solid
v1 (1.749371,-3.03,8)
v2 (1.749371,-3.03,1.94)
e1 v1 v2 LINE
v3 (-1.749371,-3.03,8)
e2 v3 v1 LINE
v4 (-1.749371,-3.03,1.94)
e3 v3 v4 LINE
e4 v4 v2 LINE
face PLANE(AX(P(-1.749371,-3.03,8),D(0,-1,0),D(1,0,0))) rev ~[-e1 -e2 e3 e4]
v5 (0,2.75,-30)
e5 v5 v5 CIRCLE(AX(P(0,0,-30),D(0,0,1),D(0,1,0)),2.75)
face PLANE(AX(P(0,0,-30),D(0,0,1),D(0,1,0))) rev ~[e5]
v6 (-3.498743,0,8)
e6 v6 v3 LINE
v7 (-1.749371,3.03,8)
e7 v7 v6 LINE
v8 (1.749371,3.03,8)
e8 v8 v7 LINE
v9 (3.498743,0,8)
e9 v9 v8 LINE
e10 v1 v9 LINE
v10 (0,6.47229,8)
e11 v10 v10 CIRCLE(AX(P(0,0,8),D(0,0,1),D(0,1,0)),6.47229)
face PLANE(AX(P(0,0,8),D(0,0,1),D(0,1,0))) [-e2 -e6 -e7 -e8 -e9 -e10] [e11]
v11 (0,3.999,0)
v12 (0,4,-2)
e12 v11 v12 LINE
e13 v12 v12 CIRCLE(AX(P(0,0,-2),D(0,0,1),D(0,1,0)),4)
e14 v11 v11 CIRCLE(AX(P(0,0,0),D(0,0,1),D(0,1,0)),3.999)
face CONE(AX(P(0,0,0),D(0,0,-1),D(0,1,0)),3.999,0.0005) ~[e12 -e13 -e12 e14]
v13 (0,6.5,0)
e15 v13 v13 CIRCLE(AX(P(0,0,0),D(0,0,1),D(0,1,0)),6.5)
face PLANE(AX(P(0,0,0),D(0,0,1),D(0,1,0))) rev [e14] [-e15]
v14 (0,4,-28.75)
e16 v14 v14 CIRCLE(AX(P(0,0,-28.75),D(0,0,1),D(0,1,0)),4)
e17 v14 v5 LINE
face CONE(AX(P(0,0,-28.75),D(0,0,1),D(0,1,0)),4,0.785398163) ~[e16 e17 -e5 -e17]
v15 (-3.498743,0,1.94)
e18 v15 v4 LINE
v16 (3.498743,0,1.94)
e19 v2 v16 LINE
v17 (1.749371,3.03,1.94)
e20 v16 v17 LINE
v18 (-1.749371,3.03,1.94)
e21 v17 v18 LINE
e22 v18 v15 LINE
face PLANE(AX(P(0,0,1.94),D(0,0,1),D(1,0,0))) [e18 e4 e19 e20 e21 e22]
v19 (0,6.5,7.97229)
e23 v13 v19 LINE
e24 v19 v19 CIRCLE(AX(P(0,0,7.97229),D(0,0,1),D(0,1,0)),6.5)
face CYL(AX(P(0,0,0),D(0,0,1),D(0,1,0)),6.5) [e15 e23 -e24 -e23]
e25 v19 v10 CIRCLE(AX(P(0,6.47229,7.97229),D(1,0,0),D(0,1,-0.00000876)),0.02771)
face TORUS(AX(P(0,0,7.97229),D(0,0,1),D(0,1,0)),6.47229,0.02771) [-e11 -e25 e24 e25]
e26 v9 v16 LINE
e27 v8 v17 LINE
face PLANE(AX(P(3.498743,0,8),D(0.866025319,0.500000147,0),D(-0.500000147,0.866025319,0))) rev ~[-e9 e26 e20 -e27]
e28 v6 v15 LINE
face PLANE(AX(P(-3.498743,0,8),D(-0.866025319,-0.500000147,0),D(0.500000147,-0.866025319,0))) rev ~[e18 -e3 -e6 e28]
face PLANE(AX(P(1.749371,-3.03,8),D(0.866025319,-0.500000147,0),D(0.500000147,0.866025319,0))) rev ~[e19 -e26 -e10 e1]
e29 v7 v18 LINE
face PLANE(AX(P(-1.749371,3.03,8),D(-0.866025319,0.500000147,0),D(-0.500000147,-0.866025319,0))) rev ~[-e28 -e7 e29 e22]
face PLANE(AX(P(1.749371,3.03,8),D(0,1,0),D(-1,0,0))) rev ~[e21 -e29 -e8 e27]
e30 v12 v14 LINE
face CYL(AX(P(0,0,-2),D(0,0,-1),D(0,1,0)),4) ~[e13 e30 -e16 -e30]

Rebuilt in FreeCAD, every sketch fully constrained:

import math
import FreeCAD as App
import Part
import Sketcher
Q = App.Units.Quantity


def add_polygon(sketch, points):
    """Adds a closed chain of lines whose ends are joined by coincident constraints."""
    first, n = sketch.GeometryCount, len(points)
    for a, b in zip(points, points[1:] + points[:1]):
        sketch.addGeometry(Part.LineSegment(App.Vector(*a, 0), App.Vector(*b, 0)), False)
    for i in range(n):
        sketch.addConstraint(Sketcher.Constraint("Coincident", first + i, 2, first + (i + 1) % n, 1))

doc = App.newDocument("Part")
params = doc.addObject("Spreadsheet::Sheet", "Params")
for row, (alias, value) in enumerate([
    ("sketch1_height", "38 mm"),
    ("sketch1_length", "2 mm"),
    ("sketch1_width", "2.75 mm"),
    ("revolution_angle", "360 deg"),
    ("pocket1_length", "6.06 mm"),
], start=1):
    params.set(f"A{row}", alias)
    params.set(f"B{row}", "=" + value)
    params.setAlias(f"B{row}", alias)

body = doc.addObject("PartDesign::Body", "Body")

# Sketch on YZ plane
sketch1 = body.newObject("Sketcher::SketchObject", "Sketch")
sketch1.AttachmentSupport = (doc.getObject("YZ_Plane"), [""])
sketch1.MapMode = "FlatFace"
sketch1.addGeometry(Part.LineSegment(App.Vector(3.999, 0, 0), App.Vector(6.5, 0, 0)), False)
sketch1.addGeometry(Part.LineSegment(App.Vector(6.5, 0, 0), App.Vector(6.5, 7.972, 0)), False)
sketch1.addGeometry(Part.ArcOfCircle(Part.Circle(App.Vector(6.472, 7.972, 0), App.Vector(0, 0, 1), 0.028), math.radians(0), math.radians(90)), False)
sketch1.addGeometry(Part.LineSegment(App.Vector(6.472, 8, 0), App.Vector(0, 8, 0)), False)
sketch1.addGeometry(Part.LineSegment(App.Vector(0, 8, 0), App.Vector(0, -30, 0)), False)
sketch1.addGeometry(Part.LineSegment(App.Vector(0, -30, 0), App.Vector(2.75, -30, 0)), False)
sketch1.addGeometry(Part.LineSegment(App.Vector(2.75, -30, 0), App.Vector(4, -28.75, 0)), False)
sketch1.addGeometry(Part.LineSegment(App.Vector(4, -28.75, 0), App.Vector(4, -2, 0)), False)
sketch1.addGeometry(Part.LineSegment(App.Vector(4, -2, 0), App.Vector(3.999, 0, 0)), False)
sketch1.addConstraint(Sketcher.Constraint("Coincident", 0, 2, 1, 1))
sketch1.addConstraint(Sketcher.Constraint("Coincident", 1, 2, 2, 1))
sketch1.addConstraint(Sketcher.Constraint("Coincident", 2, 2, 3, 1))
sketch1.addConstraint(Sketcher.Constraint("Coincident", 3, 2, 4, 1))
sketch1.addConstraint(Sketcher.Constraint("Coincident", 4, 2, 5, 1))
sketch1.addConstraint(Sketcher.Constraint("Coincident", 5, 2, 6, 1))
sketch1.addConstraint(Sketcher.Constraint("Coincident", 6, 2, 7, 1))
sketch1.addConstraint(Sketcher.Constraint("Coincident", 7, 2, 8, 1))
sketch1.addConstraint(Sketcher.Constraint("Coincident", 8, 2, 0, 1))
sketch1.addConstraint(Sketcher.Constraint("Horizontal", 0))
sketch1.addConstraint(Sketcher.Constraint("Vertical", 1))
sketch1.addConstraint(Sketcher.Constraint("Horizontal", 3))
sketch1.addConstraint(Sketcher.Constraint("Vertical", 4))
sketch1.addConstraint(Sketcher.Constraint("Horizontal", 5))
sketch1.addConstraint(Sketcher.Constraint("Vertical", 7))
sketch1.addConstraint(Sketcher.Constraint("PointOnObject", 0, 2, -1))
sketch1.addConstraint(Sketcher.Constraint("PointOnObject", 3, 2, -2))
sketch1.addConstraint(Sketcher.Constraint("Horizontal", 2, 3, 1, 2))
sketch1.addConstraint(Sketcher.Constraint("DistanceY", 4, 2, 4, 1, 38.0))
sketch1.addConstraint(Sketcher.Constraint("Angle", 6, Q("45 deg")))
sketch1.addConstraint(Sketcher.Constraint("Distance", 8, 2.0))
sketch1.addConstraint(Sketcher.Constraint("DistanceY", -1, 1, 2, 2, 8.0))
sketch1.addConstraint(Sketcher.Constraint("DistanceX", -1, 1, 6, 2, 4.0))
sketch1.addConstraint(Sketcher.Constraint("DistanceX", 5, 1, 5, 2, 2.75))
sketch1.addConstraint(Sketcher.Constraint("DistanceX", -1, 1, 0, 2, 6.5))
sketch1.addConstraint(Sketcher.Constraint("DistanceX", 0, 1, 0, 2, 2.501))
sketch1.addConstraint(Sketcher.Constraint("Radius", 2, 0.02771))
sketch1.addConstraint(Sketcher.Constraint("DistanceX", 3, 2, 3, 1, 6.47229))
sketch1.setExpression("Constraints[18]", "Params.sketch1_height")
sketch1.setExpression("Constraints[20]", "Params.sketch1_length")
sketch1.setExpression("Constraints[23]", "Params.sketch1_width")
revolution = body.newObject("PartDesign::Revolution", "Revolution")
revolution.Profile = sketch1
revolution.ReferenceAxis = (sketch1, ["V_Axis"])
revolution.setExpression("Angle", "Params.revolution_angle")

# Sketch on XY plane
sketch2 = body.newObject("Sketcher::SketchObject", "Sketch001")
sketch2.AttachmentSupport = (doc.getObject("XY_Plane"), [""])
sketch2.MapMode = "FlatFace"
sketch2.AttachmentOffset = App.Placement(App.Vector(0, 0, 8), App.Rotation())
add_polygon(sketch2, [(3.5, 0), (1.7, 3), (-1.7, 3), (-3.5, 0), (-1.7, -3), (1.7, -3)])  # lines 0-5
sketch2.addConstraint(Sketcher.Constraint("Horizontal", 1))
sketch2.addConstraint(Sketcher.Constraint("Horizontal", 4))
sketch2.addConstraint(Sketcher.Constraint("Symmetric", 0, 2, 3, 2, -1, 1))
sketch2.addConstraint(Sketcher.Constraint("Symmetric", 2, 2, 5, 2, -1, 1))
sketch2.addConstraint(Sketcher.Constraint("PointOnObject", 2, 2, -1))
sketch2.addConstraint(Sketcher.Constraint("Parallel", 2, 5))
sketch2.addConstraint(Sketcher.Constraint("Vertical", 1, 2, 3, 2))
sketch2.addConstraint(Sketcher.Constraint("Angle", 0, Q("120.00001 deg")))
sketch2.addConstraint(Sketcher.Constraint("DistanceY", -1, 1, 0, 2, 3.03))
sketch2.addConstraint(Sketcher.Constraint("DistanceX", 1, 2, 1, 1, 3.498742))
pocket1 = body.newObject("PartDesign::Pocket", "Pocket")
pocket1.Profile = sketch2
pocket1.setExpression("Length", "Params.pocket1_length")

doc.recompute()
